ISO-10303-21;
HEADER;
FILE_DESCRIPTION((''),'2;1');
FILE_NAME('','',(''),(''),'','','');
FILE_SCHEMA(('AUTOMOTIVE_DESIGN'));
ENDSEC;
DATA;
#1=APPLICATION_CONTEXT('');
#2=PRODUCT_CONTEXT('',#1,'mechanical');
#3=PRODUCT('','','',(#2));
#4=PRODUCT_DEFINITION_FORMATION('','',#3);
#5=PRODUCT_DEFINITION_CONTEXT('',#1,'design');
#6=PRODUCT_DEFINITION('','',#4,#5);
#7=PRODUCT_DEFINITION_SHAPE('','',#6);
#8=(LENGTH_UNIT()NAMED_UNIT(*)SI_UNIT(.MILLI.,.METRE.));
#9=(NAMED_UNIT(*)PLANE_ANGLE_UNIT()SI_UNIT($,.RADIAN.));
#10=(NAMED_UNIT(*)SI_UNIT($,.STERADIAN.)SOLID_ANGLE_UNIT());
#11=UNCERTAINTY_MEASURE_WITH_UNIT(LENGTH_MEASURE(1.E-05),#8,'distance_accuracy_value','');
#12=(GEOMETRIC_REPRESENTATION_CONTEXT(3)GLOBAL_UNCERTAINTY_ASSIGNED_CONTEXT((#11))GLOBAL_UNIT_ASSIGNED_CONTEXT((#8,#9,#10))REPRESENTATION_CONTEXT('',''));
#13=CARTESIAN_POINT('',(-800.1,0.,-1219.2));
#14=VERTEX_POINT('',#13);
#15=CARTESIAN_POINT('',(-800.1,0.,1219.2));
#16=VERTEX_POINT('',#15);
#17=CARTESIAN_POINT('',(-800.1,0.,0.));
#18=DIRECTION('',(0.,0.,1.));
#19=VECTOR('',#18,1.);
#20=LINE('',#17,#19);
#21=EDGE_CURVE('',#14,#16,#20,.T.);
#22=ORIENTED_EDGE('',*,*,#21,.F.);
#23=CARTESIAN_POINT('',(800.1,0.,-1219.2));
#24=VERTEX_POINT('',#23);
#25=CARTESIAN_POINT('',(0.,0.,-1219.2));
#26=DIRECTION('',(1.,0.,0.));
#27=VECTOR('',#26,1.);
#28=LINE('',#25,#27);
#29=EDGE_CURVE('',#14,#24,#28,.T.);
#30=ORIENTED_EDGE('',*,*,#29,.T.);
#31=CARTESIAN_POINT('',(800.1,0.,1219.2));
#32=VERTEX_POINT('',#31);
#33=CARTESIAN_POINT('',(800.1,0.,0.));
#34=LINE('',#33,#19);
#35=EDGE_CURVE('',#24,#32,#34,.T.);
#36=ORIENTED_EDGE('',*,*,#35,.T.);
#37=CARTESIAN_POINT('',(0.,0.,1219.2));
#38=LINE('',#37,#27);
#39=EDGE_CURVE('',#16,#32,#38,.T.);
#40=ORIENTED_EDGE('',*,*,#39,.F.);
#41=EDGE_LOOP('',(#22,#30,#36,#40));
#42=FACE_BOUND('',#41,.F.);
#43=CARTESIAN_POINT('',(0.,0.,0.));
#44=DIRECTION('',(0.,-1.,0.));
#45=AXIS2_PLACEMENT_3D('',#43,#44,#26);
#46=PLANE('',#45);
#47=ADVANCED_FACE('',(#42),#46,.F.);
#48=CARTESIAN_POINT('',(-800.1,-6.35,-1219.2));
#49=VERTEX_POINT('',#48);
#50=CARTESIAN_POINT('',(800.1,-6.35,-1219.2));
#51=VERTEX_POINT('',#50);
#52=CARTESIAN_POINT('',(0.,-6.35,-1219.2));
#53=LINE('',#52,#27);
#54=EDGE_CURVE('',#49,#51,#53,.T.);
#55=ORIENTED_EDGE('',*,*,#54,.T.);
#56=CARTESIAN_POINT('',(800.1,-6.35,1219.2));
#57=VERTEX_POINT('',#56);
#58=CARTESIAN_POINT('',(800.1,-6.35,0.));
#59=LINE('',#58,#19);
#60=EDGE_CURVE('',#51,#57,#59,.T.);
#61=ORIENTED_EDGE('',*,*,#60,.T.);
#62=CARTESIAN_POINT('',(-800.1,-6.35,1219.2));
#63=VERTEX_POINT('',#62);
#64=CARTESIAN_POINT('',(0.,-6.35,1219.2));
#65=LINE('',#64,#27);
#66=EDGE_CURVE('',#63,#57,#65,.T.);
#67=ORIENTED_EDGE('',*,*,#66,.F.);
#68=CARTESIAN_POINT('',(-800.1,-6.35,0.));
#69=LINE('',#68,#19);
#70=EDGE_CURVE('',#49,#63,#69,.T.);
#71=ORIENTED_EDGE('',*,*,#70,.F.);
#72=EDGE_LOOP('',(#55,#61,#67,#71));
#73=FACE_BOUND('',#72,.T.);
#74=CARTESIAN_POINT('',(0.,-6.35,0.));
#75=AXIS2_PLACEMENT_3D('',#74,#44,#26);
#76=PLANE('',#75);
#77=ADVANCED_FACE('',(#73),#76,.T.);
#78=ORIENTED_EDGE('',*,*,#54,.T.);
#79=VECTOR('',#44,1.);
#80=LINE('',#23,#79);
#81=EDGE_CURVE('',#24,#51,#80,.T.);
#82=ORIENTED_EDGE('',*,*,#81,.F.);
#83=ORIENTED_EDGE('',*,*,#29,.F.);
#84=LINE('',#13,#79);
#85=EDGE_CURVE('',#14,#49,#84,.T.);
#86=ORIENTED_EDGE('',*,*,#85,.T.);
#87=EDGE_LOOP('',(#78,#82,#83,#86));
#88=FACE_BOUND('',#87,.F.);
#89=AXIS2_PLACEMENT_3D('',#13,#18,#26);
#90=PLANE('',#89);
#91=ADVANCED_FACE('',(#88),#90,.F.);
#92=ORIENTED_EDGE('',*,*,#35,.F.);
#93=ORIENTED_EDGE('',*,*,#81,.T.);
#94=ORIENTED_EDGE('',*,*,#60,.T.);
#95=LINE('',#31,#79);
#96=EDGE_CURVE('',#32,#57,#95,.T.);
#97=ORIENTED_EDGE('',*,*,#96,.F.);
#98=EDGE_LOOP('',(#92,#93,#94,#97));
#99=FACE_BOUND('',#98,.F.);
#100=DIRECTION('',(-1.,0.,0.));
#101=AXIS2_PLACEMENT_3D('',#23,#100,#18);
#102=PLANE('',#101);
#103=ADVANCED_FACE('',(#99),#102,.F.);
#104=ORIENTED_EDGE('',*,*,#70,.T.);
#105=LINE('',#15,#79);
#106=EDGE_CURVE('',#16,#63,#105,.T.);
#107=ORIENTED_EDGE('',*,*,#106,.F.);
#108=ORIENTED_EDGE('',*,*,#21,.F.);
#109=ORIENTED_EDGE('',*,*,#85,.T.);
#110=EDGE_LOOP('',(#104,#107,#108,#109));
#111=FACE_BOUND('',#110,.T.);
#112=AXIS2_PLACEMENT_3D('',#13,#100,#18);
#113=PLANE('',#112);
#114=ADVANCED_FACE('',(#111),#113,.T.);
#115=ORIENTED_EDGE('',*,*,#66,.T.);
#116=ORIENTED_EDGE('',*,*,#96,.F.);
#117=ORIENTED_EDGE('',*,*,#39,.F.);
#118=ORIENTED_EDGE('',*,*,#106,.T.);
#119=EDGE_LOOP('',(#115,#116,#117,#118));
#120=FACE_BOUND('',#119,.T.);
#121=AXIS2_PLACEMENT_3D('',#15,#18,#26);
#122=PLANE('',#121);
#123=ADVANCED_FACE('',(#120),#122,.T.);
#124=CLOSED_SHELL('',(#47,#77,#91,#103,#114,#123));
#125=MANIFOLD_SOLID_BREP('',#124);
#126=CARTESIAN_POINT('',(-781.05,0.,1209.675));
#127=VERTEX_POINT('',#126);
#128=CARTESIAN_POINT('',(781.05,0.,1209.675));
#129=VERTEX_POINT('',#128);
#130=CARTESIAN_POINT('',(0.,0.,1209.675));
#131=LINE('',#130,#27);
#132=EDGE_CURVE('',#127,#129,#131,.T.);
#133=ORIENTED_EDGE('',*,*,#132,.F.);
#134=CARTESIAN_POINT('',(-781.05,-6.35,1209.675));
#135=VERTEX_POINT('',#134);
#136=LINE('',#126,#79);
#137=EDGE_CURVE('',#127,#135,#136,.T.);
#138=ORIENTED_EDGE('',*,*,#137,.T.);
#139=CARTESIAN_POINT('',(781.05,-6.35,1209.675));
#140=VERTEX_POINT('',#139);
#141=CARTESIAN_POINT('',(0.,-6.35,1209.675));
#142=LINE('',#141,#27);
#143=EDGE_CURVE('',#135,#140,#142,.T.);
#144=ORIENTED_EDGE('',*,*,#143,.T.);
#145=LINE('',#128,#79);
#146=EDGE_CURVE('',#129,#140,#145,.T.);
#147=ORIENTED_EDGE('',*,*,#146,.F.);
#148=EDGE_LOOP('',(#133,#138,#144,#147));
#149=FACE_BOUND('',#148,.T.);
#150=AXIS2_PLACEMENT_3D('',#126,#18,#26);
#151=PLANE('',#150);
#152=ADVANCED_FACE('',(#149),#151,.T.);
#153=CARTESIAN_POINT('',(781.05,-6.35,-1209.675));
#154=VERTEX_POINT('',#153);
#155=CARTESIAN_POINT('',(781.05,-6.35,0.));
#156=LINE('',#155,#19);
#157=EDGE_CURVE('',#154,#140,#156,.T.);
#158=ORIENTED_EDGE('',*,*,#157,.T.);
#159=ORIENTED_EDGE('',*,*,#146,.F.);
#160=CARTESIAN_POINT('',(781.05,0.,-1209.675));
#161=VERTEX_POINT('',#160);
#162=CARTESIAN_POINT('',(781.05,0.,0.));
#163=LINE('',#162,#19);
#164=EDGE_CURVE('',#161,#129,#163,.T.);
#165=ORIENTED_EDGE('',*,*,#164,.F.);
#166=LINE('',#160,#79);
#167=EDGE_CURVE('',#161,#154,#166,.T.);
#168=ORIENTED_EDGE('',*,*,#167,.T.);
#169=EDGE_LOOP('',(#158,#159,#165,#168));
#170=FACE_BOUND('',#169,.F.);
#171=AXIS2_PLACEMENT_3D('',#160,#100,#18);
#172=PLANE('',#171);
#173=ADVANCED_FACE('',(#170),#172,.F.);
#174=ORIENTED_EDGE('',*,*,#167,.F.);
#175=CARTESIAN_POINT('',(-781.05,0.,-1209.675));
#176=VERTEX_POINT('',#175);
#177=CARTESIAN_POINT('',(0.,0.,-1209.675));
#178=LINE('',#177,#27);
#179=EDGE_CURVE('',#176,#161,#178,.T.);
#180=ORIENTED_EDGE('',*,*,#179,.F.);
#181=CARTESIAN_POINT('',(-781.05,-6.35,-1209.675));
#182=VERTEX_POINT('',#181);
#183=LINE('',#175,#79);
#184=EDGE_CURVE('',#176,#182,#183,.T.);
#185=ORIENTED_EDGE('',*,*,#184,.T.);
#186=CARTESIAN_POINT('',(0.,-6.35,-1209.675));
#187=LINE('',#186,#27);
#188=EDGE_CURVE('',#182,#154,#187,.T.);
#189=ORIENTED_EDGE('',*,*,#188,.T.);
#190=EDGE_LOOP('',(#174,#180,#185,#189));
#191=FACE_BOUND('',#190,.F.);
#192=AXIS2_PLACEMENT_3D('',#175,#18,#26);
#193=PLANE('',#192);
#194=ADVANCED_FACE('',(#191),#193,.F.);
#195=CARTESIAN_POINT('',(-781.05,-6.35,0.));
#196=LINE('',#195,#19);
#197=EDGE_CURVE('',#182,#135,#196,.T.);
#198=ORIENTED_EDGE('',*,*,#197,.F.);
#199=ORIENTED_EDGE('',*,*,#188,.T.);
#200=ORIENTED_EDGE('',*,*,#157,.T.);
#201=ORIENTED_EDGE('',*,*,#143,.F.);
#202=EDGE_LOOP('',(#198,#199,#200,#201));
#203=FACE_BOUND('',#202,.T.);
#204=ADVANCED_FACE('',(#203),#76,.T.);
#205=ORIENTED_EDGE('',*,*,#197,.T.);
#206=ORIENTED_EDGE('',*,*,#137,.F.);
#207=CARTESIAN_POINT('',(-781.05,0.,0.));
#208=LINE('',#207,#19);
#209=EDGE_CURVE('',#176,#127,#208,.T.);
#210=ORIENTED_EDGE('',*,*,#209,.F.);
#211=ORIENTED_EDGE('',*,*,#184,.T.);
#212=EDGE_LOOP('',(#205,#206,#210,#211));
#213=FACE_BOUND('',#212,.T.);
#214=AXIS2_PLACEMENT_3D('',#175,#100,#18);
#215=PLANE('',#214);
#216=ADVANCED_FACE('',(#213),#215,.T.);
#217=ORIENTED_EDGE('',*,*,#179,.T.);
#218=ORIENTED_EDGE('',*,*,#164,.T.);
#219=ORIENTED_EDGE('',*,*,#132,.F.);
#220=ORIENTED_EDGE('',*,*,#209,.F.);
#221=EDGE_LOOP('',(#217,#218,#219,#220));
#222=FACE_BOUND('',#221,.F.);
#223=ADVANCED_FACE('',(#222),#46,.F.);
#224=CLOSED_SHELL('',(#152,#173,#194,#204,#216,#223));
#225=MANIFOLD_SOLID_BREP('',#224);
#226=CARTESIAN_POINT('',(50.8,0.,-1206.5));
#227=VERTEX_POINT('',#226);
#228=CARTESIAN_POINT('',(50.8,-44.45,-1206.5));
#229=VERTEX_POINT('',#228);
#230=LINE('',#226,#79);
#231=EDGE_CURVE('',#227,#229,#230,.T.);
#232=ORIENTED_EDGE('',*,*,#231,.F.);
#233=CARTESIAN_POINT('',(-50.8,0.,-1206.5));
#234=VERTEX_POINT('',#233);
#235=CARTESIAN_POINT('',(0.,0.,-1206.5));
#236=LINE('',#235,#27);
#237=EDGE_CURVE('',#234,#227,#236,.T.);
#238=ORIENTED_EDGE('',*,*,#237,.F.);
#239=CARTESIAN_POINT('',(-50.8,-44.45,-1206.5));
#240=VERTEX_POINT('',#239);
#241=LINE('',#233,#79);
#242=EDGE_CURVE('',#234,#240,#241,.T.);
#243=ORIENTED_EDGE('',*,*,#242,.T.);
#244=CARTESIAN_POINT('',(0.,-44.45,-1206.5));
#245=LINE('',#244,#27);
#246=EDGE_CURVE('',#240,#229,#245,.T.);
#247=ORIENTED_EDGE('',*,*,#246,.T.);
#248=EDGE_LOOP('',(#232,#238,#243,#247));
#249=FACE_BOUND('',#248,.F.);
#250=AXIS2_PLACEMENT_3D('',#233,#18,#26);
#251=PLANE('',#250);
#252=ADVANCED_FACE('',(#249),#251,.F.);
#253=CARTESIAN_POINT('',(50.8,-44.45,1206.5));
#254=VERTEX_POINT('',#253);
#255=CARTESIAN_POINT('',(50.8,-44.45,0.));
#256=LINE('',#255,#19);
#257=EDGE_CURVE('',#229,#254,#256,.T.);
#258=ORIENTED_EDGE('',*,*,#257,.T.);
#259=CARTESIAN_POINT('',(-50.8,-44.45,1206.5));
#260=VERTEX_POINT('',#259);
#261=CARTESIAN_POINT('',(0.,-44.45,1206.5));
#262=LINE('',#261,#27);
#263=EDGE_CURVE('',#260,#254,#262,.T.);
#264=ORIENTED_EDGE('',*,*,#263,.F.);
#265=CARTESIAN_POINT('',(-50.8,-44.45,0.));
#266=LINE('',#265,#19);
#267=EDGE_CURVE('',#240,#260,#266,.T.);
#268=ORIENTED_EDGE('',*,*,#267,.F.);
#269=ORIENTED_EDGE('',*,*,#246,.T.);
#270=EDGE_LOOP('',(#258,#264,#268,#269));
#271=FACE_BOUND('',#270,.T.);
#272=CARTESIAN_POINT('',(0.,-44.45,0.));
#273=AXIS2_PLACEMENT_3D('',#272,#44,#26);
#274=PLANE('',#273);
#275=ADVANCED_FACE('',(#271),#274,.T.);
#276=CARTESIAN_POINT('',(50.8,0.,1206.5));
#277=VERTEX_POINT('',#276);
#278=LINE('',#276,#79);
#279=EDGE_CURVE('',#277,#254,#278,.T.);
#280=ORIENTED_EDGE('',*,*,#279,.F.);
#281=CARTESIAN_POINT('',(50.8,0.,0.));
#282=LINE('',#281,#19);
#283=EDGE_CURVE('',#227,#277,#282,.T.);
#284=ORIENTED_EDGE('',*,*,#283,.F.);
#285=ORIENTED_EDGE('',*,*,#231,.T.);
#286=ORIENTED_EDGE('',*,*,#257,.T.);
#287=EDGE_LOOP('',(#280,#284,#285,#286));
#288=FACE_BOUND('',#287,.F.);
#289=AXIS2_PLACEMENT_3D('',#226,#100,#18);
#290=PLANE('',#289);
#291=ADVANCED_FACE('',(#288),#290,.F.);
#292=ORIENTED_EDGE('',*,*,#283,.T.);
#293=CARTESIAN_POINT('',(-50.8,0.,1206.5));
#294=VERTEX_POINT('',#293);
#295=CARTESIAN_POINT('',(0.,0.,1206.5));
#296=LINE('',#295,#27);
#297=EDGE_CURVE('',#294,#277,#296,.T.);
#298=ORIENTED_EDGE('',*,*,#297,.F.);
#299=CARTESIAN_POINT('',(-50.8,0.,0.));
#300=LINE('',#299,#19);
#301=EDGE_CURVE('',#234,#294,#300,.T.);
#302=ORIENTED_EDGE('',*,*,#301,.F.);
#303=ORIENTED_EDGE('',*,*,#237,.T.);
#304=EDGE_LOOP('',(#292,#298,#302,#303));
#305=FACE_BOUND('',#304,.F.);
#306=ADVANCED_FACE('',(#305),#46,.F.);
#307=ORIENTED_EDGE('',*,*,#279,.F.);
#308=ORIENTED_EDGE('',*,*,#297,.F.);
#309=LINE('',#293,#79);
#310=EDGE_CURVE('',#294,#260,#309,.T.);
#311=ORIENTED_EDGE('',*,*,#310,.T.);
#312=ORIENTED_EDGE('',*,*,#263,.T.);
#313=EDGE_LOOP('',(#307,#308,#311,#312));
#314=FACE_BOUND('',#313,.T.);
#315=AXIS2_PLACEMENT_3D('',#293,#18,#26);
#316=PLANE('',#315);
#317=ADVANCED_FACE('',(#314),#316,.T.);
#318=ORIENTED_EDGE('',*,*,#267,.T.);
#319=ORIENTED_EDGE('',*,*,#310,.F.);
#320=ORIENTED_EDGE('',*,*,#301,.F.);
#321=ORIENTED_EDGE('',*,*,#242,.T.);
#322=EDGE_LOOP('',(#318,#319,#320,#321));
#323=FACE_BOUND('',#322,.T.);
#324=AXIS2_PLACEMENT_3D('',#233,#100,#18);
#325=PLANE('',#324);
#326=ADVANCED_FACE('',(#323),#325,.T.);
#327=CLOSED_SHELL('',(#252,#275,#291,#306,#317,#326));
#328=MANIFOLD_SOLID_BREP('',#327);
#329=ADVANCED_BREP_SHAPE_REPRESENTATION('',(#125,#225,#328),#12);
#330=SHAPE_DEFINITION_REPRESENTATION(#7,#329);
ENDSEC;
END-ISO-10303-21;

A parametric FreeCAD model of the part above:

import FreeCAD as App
import Part
import Sketcher
Q = App.Units.Quantity

doc = App.newDocument("Part")
body = doc.addObject("PartDesign::Body", "Body")

# Sketch on XZ plane
sketch1 = doc.addObject("Sketcher::SketchObject", "Sketch")
body.addObject(sketch1)
sketch1.AttachmentSupport = (doc.XZ_Plane, [""])
sketch1.MapMode = "FlatFace"
sketch1.addGeometry(Part.LineSegment(App.Vector(-800, 1219, 0), App.Vector(-800, -1219, 0)), False)
sketch1.addGeometry(Part.LineSegment(App.Vector(-800, -1219, 0), App.Vector(800, -1219, 0)), False)
sketch1.addGeometry(Part.LineSegment(App.Vector(800, -1219, 0), App.Vector(800, 1219, 0)), False)
sketch1.addGeometry(Part.LineSegment(App.Vector(800, 1219, 0), App.Vector(-800, 1219, 0)), False)
sketch1.addConstraint(Sketcher.Constraint("Coincident", 0, 2, 1, 1))
sketch1.addConstraint(Sketcher.Constraint("Coincident", 1, 2, 2, 1))
sketch1.addConstraint(Sketcher.Constraint("Coincident", 2, 2, 3, 1))
sketch1.addConstraint(Sketcher.Constraint("Coincident", 3, 2, 0, 1))
sketch1.addConstraint(Sketcher.Constraint("Vertical", 0))
sketch1.addConstraint(Sketcher.Constraint("Horizontal", 1))
sketch1.addConstraint(Sketcher.Constraint("Vertical", 2))
sketch1.addConstraint(Sketcher.Constraint("Horizontal", 3))
sketch1.addConstraint(Sketcher.Constraint("Symmetric", 0, 2, 2, 2, -1, 1))
sketch1.addConstraint(Sketcher.Constraint("DistanceX", 1, 1, 1, 2, Q("63 in")))
sketch1.addConstraint(Sketcher.Constraint("DistanceY", 0, 2, 0, 1, Q("96 in")))
pad1 = doc.addObject("PartDesign::Pad", "Pad")
body.addObject(pad1)
pad1.Profile = sketch1
pad1.Length = Q("0.25 in")
body2 = doc.addObject("PartDesign::Body", "Body001")

# Sketch on XZ plane
sketch2 = doc.addObject("Sketcher::SketchObject", "Sketch001")
body2.addObject(sketch2)
sketch2.AttachmentSupport = (doc.getObject("XZ_Plane001"), [""])
sketch2.MapMode = "FlatFace"
sketch2.addGeometry(Part.LineSegment(App.Vector(-51, 1206, 0), App.Vector(-51, -1206, 0)), False)
sketch2.addGeometry(Part.LineSegment(App.Vector(-51, -1206, 0), App.Vector(51, -1206, 0)), False)
sketch2.addGeometry(Part.LineSegment(App.Vector(51, -1206, 0), App.Vector(51, 1206, 0)), False)
sketch2.addGeometry(Part.LineSegment(App.Vector(51, 1206, 0), App.Vector(-51, 1206, 0)), False)
sketch2.addConstraint(Sketcher.Constraint("Coincident", 0, 2, 1, 1))
sketch2.addConstraint(Sketcher.Constraint("Coincident", 1, 2, 2, 1))
sketch2.addConstraint(Sketcher.Constraint("Coincident", 2, 2, 3, 1))
sketch2.addConstraint(Sketcher.Constraint("Coincident", 3, 2, 0, 1))
sketch2.addConstraint(Sketcher.Constraint("Vertical", 0))
sketch2.addConstraint(Sketcher.Constraint("Horizontal", 1))
sketch2.addConstraint(Sketcher.Constraint("Vertical", 2))
sketch2.addConstraint(Sketcher.Constraint("Horizontal", 3))
sketch2.addConstraint(Sketcher.Constraint("Symmetric", 0, 2, 2, 2, -1, 1))
sketch2.addConstraint(Sketcher.Constraint("DistanceX", 1, 1, 1, 2, Q("4 in")))
sketch2.addConstraint(Sketcher.Constraint("DistanceY", 0, 2, 0, 1, Q("95 in")))
pad2 = doc.addObject("PartDesign::Pad", "Pad001")
body2.addObject(pad2)
pad2.Profile = sketch2
pad2.Length = Q("1.75 in")
body3 = doc.addObject("PartDesign::Body", "Body002")

# Sketch on XZ plane
sketch3 = doc.addObject("Sketcher::SketchObject", "Sketch002")
body3.addObject(sketch3)
sketch3.AttachmentSupport = (doc.getObject("XZ_Plane002"), [""])
sketch3.MapMode = "FlatFace"
sketch3.addGeometry(Part.LineSegment(App.Vector(-781, 1210, 0), App.Vector(-781, -1210, 0)), False)
sketch3.addGeometry(Part.LineSegment(App.Vector(-781, -1210, 0), App.Vector(781, -1210, 0)), False)
sketch3.addGeometry(Part.LineSegment(App.Vector(781, -1210, 0), App.Vector(781, 1210, 0)), False)
sketch3.addGeometry(Part.LineSegment(App.Vector(781, 1210, 0), App.Vector(-781, 1210, 0)), False)
sketch3.addConstraint(Sketcher.Constraint("Coincident", 0, 2, 1, 1))
sketch3.addConstraint(Sketcher.Constraint("Coincident", 1, 2, 2, 1))
sketch3.addConstraint(Sketcher.Constraint("Coincident", 2, 2, 3, 1))
sketch3.addConstraint(Sketcher.Constraint("Coincident", 3, 2, 0, 1))
sketch3.addConstraint(Sketcher.Constraint("Vertical", 0))
sketch3.addConstraint(Sketcher.Constraint("Horizontal", 1))
sketch3.addConstraint(Sketcher.Constraint("Vertical", 2))
sketch3.addConstraint(Sketcher.Constraint("Horizontal", 3))
sketch3.addConstraint(Sketcher.Constraint("Symmetric", 0, 2, 2, 2, -1, 1))
sketch3.addConstraint(Sketcher.Constraint("DistanceX", 1, 1, 1, 2, Q("61.5 in")))
sketch3.addConstraint(Sketcher.Constraint("DistanceY", 0, 2, 0, 1, Q("95.25 in")))
pad3 = doc.addObject("PartDesign::Pad", "Pad002")
body3.addObject(pad3)
pad3.Profile = sketch3
pad3.Length = Q("0.25 in")

doc.recompute()
